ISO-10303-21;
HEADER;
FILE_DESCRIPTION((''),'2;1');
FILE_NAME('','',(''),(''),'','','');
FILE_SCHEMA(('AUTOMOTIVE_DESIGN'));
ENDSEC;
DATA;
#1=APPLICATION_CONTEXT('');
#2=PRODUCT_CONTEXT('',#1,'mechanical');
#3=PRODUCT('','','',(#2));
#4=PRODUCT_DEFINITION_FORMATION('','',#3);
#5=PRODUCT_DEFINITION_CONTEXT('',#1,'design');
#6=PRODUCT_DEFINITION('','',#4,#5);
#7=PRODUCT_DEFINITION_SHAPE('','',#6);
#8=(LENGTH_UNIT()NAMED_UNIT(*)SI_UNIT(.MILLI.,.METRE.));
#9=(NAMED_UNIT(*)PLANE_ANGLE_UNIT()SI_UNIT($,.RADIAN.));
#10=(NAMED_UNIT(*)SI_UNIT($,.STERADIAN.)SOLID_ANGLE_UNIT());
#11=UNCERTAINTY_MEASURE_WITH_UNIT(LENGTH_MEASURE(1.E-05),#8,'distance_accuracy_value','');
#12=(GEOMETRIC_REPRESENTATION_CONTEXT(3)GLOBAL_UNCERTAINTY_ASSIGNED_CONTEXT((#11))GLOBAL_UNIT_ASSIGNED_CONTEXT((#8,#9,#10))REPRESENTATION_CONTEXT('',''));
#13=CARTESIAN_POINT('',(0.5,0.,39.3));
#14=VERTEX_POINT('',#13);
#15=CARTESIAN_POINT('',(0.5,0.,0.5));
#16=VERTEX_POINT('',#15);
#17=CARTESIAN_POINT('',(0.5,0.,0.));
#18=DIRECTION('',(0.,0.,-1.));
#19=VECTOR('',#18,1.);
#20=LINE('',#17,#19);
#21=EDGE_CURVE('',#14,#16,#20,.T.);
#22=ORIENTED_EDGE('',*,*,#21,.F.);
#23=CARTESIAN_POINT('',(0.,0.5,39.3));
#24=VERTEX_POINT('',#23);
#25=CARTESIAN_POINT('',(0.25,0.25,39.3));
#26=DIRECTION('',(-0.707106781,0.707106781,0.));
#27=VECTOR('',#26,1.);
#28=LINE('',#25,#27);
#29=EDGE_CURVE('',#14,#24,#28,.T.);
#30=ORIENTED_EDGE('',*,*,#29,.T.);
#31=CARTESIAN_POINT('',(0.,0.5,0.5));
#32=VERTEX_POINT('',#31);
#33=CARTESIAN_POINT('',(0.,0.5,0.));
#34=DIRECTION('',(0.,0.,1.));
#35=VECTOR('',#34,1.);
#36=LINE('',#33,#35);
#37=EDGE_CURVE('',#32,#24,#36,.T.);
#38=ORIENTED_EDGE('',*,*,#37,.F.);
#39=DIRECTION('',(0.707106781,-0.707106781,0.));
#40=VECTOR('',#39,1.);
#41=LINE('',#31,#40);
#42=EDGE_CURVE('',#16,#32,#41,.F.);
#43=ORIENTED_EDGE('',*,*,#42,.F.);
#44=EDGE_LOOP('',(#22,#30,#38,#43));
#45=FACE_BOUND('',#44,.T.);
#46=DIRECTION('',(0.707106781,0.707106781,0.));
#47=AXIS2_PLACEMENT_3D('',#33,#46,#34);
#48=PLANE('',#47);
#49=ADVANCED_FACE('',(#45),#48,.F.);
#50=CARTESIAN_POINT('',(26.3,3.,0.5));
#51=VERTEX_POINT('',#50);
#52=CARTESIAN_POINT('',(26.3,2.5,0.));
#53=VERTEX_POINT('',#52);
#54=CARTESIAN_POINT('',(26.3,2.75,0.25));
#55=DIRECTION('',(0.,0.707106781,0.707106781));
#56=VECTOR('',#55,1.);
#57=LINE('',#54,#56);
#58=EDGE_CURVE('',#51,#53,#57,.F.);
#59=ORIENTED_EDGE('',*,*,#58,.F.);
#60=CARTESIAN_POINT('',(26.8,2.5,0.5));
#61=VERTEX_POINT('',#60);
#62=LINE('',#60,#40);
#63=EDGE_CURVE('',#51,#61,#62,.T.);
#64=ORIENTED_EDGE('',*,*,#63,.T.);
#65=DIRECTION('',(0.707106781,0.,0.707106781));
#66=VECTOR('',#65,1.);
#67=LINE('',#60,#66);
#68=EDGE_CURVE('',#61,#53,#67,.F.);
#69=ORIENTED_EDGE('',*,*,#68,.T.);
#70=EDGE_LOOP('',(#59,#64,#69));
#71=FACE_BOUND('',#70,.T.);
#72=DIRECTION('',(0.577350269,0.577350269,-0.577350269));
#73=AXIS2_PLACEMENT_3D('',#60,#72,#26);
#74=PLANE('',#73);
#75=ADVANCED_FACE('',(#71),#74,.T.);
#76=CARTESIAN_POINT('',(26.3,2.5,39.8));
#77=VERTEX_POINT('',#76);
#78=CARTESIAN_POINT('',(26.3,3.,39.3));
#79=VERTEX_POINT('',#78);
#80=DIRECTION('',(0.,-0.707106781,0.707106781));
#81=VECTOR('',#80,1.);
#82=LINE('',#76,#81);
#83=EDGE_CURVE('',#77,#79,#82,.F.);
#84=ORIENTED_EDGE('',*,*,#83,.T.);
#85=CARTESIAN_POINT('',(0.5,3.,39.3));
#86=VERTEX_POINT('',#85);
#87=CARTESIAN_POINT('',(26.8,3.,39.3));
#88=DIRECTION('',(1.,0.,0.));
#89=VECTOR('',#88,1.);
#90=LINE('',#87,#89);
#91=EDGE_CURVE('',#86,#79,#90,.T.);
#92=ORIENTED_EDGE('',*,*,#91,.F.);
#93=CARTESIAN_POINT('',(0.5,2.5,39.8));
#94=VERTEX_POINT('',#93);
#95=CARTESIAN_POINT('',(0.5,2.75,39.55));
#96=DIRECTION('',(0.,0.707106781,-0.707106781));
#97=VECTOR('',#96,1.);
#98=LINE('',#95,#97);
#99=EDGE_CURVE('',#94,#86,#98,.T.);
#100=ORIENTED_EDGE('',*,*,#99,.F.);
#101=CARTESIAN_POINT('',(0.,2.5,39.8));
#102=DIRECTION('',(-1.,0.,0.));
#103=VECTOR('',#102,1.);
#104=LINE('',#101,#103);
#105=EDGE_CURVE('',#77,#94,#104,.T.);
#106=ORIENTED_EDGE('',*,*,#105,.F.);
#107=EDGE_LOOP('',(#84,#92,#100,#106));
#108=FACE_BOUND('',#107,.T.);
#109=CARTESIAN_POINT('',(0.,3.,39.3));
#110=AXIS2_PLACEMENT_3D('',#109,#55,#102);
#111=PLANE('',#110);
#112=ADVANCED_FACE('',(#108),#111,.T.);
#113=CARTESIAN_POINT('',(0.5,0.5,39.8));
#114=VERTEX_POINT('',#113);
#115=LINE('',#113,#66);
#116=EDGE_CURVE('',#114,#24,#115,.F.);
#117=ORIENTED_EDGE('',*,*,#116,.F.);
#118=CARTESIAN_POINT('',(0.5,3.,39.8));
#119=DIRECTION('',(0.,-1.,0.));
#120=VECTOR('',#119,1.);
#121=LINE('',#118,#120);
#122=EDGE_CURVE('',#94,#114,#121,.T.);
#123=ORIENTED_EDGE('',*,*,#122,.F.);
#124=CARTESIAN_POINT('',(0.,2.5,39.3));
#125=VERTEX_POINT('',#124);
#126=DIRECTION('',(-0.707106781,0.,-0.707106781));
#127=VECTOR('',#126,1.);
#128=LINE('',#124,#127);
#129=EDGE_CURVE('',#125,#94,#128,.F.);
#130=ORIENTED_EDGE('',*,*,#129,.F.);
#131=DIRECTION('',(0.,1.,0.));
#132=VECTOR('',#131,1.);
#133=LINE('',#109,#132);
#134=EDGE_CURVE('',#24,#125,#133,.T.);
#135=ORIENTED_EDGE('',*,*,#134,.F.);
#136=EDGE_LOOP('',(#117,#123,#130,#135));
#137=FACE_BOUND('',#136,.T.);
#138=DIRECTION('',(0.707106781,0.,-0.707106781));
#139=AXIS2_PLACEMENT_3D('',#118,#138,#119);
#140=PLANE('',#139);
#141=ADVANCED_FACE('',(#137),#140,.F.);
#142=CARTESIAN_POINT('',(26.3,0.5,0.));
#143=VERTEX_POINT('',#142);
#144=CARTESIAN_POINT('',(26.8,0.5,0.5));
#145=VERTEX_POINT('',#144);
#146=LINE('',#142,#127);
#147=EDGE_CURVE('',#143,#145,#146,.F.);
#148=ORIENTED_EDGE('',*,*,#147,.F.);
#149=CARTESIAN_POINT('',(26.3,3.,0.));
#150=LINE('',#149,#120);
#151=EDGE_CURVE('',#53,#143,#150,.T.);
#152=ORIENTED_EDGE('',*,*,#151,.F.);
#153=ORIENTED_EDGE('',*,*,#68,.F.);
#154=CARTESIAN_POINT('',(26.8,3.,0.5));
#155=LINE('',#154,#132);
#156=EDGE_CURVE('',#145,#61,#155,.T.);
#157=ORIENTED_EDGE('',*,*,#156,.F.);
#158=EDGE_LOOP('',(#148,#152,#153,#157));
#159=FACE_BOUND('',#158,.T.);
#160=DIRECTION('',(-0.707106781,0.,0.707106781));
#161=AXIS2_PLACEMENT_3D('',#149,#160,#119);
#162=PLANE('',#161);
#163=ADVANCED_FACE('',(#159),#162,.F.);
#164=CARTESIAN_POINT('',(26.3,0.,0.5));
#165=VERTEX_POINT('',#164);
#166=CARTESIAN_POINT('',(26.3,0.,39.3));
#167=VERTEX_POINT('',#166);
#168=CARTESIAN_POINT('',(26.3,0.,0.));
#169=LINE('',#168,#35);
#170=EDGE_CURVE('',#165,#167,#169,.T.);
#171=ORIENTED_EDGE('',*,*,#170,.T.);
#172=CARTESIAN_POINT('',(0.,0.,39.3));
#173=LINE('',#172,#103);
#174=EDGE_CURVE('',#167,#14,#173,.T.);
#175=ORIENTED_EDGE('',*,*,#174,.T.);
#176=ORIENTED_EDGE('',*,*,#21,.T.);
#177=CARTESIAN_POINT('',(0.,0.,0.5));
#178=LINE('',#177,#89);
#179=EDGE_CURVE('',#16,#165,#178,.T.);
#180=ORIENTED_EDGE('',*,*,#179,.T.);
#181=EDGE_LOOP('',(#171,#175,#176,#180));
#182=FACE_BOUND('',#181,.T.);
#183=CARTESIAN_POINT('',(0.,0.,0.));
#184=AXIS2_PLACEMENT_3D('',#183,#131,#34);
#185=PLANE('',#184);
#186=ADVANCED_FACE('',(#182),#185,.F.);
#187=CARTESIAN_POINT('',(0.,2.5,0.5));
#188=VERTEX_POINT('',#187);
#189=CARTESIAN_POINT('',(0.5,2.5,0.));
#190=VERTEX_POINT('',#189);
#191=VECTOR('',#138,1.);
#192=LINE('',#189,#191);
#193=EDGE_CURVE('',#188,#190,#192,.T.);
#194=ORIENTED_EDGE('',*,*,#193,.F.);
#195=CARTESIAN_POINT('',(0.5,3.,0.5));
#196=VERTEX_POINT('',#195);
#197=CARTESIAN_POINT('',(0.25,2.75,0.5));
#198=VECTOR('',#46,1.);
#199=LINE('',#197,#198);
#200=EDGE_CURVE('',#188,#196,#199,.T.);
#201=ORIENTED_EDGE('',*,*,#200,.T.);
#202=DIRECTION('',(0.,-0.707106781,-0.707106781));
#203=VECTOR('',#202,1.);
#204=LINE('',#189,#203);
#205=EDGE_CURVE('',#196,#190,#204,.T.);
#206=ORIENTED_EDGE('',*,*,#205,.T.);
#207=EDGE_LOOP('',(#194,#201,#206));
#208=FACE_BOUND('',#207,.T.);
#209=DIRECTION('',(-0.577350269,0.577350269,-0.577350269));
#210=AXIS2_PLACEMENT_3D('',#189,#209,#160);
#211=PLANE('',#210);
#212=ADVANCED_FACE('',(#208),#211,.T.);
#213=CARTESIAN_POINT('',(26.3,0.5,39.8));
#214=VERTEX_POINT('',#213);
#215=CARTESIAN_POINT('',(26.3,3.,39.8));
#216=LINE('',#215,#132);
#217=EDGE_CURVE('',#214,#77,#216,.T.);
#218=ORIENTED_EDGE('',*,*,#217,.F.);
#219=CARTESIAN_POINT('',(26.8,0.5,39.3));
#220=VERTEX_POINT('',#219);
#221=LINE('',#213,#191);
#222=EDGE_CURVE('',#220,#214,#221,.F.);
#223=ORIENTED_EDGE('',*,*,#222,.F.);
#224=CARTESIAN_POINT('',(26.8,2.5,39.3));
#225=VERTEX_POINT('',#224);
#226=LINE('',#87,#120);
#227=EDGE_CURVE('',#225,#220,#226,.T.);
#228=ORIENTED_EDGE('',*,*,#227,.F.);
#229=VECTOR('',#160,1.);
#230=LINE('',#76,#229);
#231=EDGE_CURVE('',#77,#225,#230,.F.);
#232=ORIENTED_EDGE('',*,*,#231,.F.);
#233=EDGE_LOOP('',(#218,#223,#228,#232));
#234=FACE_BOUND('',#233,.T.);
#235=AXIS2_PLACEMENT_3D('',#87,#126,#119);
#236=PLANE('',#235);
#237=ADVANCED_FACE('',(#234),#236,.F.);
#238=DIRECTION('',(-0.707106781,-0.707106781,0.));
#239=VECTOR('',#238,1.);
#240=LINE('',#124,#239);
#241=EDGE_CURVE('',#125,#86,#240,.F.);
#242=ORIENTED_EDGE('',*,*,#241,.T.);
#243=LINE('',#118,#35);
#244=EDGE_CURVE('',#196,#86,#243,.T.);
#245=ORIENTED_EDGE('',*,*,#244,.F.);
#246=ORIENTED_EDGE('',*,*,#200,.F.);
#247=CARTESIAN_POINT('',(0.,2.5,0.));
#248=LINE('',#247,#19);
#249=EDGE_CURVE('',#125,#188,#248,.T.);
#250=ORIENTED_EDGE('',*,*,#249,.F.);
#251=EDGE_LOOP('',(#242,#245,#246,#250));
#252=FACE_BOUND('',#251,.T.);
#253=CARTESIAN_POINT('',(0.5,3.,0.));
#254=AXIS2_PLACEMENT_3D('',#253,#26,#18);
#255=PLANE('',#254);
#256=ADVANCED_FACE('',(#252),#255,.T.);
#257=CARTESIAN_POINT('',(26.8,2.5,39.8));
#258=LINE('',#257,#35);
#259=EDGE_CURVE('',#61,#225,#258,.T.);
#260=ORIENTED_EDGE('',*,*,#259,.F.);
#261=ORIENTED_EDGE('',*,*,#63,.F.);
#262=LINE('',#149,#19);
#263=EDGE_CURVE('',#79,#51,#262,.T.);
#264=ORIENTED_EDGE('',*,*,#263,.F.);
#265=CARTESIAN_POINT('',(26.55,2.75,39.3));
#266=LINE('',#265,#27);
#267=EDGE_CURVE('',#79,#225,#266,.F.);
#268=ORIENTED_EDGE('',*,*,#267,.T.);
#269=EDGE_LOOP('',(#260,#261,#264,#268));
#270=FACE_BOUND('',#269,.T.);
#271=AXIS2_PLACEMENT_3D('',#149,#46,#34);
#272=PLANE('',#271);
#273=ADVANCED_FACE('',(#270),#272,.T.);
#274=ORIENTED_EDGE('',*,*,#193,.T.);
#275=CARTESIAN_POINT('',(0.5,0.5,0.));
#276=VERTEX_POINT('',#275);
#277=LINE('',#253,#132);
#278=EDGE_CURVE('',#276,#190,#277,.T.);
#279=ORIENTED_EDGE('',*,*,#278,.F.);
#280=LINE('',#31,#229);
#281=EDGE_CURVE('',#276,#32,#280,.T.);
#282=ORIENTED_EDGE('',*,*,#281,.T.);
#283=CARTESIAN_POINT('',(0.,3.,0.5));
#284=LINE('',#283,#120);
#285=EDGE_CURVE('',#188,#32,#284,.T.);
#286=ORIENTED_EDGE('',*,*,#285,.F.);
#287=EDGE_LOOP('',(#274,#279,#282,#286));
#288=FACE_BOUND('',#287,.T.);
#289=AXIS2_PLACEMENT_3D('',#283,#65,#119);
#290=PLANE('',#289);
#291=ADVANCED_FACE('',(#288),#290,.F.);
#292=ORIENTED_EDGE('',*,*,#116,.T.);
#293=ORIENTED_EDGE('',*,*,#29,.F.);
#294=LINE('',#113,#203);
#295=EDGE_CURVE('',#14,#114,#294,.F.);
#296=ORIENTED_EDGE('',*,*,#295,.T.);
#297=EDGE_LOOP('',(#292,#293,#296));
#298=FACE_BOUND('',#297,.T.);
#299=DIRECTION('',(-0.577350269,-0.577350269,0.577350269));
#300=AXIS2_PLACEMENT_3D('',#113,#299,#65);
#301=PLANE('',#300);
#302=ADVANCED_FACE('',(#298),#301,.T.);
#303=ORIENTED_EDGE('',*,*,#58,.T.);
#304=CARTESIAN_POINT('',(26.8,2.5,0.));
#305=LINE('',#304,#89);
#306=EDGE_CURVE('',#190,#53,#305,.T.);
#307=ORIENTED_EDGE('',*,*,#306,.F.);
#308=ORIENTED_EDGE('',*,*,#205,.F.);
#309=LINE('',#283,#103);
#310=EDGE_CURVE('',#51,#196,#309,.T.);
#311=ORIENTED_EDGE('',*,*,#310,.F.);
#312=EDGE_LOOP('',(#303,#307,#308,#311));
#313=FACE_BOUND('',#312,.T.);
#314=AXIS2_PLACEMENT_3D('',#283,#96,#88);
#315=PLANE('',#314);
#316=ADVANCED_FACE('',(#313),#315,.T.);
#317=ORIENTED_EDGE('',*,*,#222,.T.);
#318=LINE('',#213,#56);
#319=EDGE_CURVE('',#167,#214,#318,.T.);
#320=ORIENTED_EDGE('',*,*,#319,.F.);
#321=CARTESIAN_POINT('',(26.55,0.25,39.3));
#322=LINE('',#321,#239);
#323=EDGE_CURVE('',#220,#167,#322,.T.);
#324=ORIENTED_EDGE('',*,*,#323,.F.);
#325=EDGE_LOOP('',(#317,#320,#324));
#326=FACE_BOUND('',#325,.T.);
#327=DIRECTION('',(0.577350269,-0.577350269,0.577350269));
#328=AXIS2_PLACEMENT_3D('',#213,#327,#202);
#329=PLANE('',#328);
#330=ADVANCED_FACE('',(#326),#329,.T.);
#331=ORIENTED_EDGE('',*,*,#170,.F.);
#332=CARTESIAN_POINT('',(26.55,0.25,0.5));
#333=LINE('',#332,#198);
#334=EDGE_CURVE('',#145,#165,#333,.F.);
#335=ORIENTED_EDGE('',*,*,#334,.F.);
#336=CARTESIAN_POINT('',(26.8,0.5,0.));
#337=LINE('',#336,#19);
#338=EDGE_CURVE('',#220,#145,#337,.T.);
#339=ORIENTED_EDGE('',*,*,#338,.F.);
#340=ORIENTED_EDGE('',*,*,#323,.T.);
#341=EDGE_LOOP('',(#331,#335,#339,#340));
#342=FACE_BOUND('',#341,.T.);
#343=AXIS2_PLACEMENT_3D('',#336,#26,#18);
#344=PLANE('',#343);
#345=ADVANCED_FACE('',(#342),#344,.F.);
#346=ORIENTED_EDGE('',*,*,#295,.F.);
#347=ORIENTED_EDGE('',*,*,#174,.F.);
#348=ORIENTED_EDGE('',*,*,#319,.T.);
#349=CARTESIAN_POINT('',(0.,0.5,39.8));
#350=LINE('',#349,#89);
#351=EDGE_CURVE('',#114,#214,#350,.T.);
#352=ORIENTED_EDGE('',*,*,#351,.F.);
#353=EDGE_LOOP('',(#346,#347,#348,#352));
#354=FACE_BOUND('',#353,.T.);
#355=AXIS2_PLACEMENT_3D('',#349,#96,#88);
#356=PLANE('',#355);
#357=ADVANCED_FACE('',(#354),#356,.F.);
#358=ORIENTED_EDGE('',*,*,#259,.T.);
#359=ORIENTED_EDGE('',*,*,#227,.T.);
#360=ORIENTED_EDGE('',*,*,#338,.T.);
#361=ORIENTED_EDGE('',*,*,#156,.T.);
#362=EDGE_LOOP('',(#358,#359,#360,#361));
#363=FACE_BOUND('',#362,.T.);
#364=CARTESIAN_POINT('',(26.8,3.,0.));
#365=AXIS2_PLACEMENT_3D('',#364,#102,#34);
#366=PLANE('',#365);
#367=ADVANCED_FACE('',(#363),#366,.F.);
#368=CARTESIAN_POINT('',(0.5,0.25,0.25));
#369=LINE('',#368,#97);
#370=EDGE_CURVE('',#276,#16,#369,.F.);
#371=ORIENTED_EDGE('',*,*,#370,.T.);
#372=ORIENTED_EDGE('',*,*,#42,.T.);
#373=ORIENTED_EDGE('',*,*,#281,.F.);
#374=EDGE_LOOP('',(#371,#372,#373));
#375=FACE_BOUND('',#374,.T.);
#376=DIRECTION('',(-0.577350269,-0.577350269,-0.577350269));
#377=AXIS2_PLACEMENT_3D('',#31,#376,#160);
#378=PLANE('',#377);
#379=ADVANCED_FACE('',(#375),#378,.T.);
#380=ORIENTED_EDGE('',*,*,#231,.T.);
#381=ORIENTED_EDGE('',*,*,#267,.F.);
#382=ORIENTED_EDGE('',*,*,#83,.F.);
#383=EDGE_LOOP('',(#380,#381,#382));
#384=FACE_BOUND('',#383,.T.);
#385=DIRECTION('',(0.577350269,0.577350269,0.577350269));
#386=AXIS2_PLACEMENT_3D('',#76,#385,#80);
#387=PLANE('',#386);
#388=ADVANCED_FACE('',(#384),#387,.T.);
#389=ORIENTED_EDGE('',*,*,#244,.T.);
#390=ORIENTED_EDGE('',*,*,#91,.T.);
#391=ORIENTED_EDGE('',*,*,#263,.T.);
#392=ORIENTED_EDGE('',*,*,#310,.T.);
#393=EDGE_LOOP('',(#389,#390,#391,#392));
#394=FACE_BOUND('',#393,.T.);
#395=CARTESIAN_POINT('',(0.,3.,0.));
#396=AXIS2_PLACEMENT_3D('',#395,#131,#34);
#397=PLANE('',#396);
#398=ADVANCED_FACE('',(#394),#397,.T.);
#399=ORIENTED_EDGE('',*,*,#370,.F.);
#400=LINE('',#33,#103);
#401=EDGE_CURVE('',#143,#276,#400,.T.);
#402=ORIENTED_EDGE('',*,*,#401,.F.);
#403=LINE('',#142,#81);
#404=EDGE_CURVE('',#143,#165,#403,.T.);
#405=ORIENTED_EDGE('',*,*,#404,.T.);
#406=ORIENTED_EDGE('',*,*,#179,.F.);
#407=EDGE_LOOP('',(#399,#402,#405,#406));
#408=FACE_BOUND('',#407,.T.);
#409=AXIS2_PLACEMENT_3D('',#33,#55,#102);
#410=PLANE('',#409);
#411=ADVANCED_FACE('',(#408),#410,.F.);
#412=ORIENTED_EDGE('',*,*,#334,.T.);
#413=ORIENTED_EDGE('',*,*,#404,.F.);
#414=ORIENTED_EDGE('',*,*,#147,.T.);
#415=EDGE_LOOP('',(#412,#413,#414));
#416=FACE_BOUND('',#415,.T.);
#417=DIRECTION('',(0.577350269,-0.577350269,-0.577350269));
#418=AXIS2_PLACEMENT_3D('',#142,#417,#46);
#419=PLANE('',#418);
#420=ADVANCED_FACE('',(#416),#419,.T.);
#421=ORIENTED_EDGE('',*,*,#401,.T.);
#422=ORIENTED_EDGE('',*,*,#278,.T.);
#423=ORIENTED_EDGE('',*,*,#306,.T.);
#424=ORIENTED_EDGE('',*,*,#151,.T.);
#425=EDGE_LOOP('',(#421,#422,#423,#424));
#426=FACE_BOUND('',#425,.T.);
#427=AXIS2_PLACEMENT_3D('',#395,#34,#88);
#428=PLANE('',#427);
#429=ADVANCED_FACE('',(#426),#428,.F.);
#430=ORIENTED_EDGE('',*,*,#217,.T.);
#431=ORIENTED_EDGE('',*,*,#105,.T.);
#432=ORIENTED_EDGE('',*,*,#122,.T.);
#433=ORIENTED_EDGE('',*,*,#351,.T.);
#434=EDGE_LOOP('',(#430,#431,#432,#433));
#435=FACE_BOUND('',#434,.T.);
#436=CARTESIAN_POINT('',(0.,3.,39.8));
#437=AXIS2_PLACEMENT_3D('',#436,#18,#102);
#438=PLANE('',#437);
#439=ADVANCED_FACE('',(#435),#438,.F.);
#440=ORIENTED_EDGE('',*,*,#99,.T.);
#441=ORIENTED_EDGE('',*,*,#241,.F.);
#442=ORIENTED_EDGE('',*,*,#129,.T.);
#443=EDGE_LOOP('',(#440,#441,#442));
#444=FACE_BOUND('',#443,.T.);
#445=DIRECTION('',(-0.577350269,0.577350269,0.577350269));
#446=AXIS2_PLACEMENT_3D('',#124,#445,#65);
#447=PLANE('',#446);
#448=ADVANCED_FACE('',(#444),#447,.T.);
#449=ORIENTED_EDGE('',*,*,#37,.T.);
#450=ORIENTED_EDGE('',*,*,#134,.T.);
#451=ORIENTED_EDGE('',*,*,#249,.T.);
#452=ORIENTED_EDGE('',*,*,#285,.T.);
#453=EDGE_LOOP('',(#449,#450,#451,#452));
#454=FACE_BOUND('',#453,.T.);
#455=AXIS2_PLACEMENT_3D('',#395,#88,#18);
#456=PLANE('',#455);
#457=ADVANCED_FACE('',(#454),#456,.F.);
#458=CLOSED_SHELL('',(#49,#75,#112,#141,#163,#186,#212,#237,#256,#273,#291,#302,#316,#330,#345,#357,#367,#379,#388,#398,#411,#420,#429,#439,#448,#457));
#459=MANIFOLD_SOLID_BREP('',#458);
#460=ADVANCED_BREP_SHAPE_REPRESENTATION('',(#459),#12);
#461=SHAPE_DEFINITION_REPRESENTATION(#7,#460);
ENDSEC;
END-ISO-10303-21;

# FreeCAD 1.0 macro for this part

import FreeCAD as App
import Part
import Sketcher
Q = App.Units.Quantity

doc = App.newDocument("Part")
params = doc.addObject("Spreadsheet::Sheet", "Params")
for row, (alias, value) in enumerate([
    ("sketch1_width", "26.8 mm"),
    ("sketch1_height", "39.8 mm"),
    ("pad1_length", "3 mm"),
    ("chamfer_size", "0.5 mm"),
], start=1):
    params.set(f"A{row}", alias)
    params.set(f"B{row}", "=" + value)
    params.setAlias(f"B{row}", alias)

body = doc.addObject("PartDesign::Body", "Body")

# Sketch on XZ plane
sketch1 = body.newObject("Sketcher::SketchObject", "Sketch")
sketch1.AttachmentSupport = (doc.getObject("XZ_Plane"), [""])
sketch1.MapMode = "FlatFace"
sketch1.addGeometry([
    Part.LineSegment(App.Vector(0, 0, 0), App.Vector(0, 40, 0)),
    Part.LineSegment(App.Vector(0, 40, 0), App.Vector(27, 40, 0)),
    Part.LineSegment(App.Vector(27, 40, 0), App.Vector(27, 0, 0)),
    Part.LineSegment(App.Vector(27, 0, 0), App.Vector(0, 0, 0)),
], False)
sketch1.addConstraint([
    Sketcher.Constraint("Coincident", 0, 2, 1, 1),
    Sketcher.Constraint("Coincident", 1, 2, 2, 1),
    Sketcher.Constraint("Coincident", 2, 2, 3, 1),
    Sketcher.Constraint("Coincident", 3, 2, 0, 1),
    Sketcher.Constraint("Vertical", 0),
    Sketcher.Constraint("Horizontal", 1),
    Sketcher.Constraint("Vertical", 2),
    Sketcher.Constraint("Horizontal", 3),
    Sketcher.Constraint("Coincident", 3, 2, -1, 1),
    Sketcher.Constraint("DistanceX", 1, 1, 1, 2, Q("26.8 mm")),
    Sketcher.Constraint("DistanceY", 0, 1, 0, 2, Q("39.8 mm")),
])
sketch1.setExpression("Constraints[9]", "Params.sketch1_width")
sketch1.setExpression("Constraints[10]", "Params.sketch1_height")
pad1 = body.newObject("PartDesign::Pad", "Pad")
pad1.Profile = sketch1
pad1.setExpression("Length", "Params.pad1_length")
pad1.Reversed = True
doc.recompute()

chamfer = body.newObject("PartDesign::Chamfer", "Chamfer")
chamfer.Base = (pad1, ["Edge1"])
chamfer.UseAllEdges = True
chamfer.setExpression("Size", "Params.chamfer_size")

doc.recompute()
